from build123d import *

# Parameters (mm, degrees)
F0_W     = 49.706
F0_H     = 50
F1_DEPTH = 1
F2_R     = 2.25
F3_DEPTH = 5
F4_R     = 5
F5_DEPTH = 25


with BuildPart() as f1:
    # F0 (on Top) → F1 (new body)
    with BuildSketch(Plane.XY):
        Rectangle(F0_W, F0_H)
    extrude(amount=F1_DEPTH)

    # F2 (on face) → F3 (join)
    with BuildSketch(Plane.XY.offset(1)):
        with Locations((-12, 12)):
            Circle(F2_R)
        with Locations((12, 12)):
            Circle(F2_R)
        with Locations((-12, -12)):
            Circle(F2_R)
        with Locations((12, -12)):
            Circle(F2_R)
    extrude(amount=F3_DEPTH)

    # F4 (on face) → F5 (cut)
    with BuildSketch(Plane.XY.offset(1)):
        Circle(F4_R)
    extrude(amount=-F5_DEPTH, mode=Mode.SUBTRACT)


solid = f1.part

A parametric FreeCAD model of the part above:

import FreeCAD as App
import Part
import Sketcher

V = App.Vector
Q = App.Units.Quantity

doc = App.newDocument("Part")
params = doc.addObject("Spreadsheet::Sheet", "Params")
for row, (alias, value) in enumerate([
    ("sketch1_height", "50 mm"),
    ("pad1_length", "1 mm"),
    ("sketch2_diameter", "4.5 mm"),
    ("pad2_length", "5 mm"),
    ("sketch3_diameter", "10 mm"),
    ("pocket1_length", "25 mm"),
], start=1):
    params.set(f"A{row}", alias)
    params.set(f"B{row}", "=" + value)
    params.setAlias(f"B{row}", alias)

body = doc.addObject("PartDesign::Body", "Body")

# Sketch on XY plane
sketch1 = body.newObject("Sketcher::SketchObject", "Sketch")
sketch1.AttachmentSupport = (doc.getObject("XY_Plane"), [""])
sketch1.MapMode = "FlatFace"
sketch1.addGeometry([
    Part.LineSegment(V(-25, 25, 0), V(-25, -25, 0)),
    Part.LineSegment(V(-25, -25, 0), V(25, -25, 0)),
    Part.LineSegment(V(25, -25, 0), V(25, 25, 0)),
    Part.LineSegment(V(25, 25, 0), V(-25, 25, 0)),
], False)
sketch1.addConstraint([
    Sketcher.Constraint("Coincident", 0, 2, 1, 1),
    Sketcher.Constraint("Coincident", 1, 2, 2, 1),
    Sketcher.Constraint("Coincident", 2, 2, 3, 1),
    Sketcher.Constraint("Coincident", 3, 2, 0, 1),
    Sketcher.Constraint("Vertical", 0),
    Sketcher.Constraint("Horizontal", 1),
    Sketcher.Constraint("Vertical", 2),
    Sketcher.Constraint("Horizontal", 3),
    Sketcher.Constraint("Symmetric", 0, 2, 2, 2, -1, 1),
    Sketcher.Constraint("DistanceY", 0, 2, 0, 1, Q("50 mm")),
    Sketcher.Constraint("DistanceX", 1, 1, 1, 2, Q("49.706 mm")),
])
sketch1.setExpression("Constraints[9]", "Params.sketch1_height")
pad1 = body.newObject("PartDesign::Pad", "Pad")
pad1.Profile = sketch1
pad1.setExpression("Length", "Params.pad1_length")

# Sketch on XY plane
sketch2 = body.newObject("Sketcher::SketchObject", "Sketch001")
sketch2.AttachmentSupport = (doc.getObject("XY_Plane"), [""])
sketch2.MapMode = "FlatFace"
sketch2.AttachmentOffset = App.Placement(V(0, 0, 1), App.Rotation())
sketch2.addGeometry([
    Part.Circle(V(-12, 12, 0), V(0, 0, 1), 2.2),
    Part.Circle(V(12, 12, 0), V(0, 0, 1), 2.2),
    Part.Circle(V(-12, -12, 0), V(0, 0, 1), 2.2),
    Part.Circle(V(12, -12, 0), V(0, 0, 1), 2.2),
], False)
sketch2.addConstraint([
    Sketcher.Constraint("Equal", 0, 1),
    Sketcher.Constraint("Equal", 1, 2),
    Sketcher.Constraint("Equal", 2, 3),
    Sketcher.Constraint("Symmetric", 1, 3, 2, 3, -1, 1),
    Sketcher.Constraint("Symmetric", 0, 3, 3, 3, -1, 1),
    Sketcher.Constraint("Symmetric", 0, 3, 1, 3, -2),
    Sketcher.Constraint("Diameter", 0, Q("4.5 mm")),
    Sketcher.Constraint("DistanceX", 0, 3, -1, 1, Q("12 mm")),
    Sketcher.Constraint("DistanceY", -1, 1, 0, 3, Q("12 mm")),
])
sketch2.setExpression("Constraints[6]", "Params.sketch2_diameter")
pad2 = body.newObject("PartDesign::Pad", "Pad001")
pad2.Profile = sketch2
pad2.setExpression("Length", "Params.pad2_length")

# Sketch on XY plane
sketch3 = body.newObject("Sketcher::SketchObject", "Sketch002")
sketch3.AttachmentSupport = (doc.getObject("XY_Plane"), [""])
sketch3.MapMode = "FlatFace"
sketch3.AttachmentOffset = App.Placement(V(0, 0, 1), App.Rotation())
sketch3.addGeometry(Part.Circle(V(0, 0, 0), V(0, 0, 1), 5), False)
sketch3.addConstraint([
    Sketcher.Constraint("Coincident", 0, 3, -1, 1),
    Sketcher.Constraint("Diameter", 0, Q("10 mm")),
])
sketch3.setExpression("Constraints[1]", "Params.sketch3_diameter")
pocket1 = body.newObject("PartDesign::Pocket", "Pocket")
pocket1.Profile = sketch3
pocket1.setExpression("Length", "Params.pocket1_length")

doc.recompute()
